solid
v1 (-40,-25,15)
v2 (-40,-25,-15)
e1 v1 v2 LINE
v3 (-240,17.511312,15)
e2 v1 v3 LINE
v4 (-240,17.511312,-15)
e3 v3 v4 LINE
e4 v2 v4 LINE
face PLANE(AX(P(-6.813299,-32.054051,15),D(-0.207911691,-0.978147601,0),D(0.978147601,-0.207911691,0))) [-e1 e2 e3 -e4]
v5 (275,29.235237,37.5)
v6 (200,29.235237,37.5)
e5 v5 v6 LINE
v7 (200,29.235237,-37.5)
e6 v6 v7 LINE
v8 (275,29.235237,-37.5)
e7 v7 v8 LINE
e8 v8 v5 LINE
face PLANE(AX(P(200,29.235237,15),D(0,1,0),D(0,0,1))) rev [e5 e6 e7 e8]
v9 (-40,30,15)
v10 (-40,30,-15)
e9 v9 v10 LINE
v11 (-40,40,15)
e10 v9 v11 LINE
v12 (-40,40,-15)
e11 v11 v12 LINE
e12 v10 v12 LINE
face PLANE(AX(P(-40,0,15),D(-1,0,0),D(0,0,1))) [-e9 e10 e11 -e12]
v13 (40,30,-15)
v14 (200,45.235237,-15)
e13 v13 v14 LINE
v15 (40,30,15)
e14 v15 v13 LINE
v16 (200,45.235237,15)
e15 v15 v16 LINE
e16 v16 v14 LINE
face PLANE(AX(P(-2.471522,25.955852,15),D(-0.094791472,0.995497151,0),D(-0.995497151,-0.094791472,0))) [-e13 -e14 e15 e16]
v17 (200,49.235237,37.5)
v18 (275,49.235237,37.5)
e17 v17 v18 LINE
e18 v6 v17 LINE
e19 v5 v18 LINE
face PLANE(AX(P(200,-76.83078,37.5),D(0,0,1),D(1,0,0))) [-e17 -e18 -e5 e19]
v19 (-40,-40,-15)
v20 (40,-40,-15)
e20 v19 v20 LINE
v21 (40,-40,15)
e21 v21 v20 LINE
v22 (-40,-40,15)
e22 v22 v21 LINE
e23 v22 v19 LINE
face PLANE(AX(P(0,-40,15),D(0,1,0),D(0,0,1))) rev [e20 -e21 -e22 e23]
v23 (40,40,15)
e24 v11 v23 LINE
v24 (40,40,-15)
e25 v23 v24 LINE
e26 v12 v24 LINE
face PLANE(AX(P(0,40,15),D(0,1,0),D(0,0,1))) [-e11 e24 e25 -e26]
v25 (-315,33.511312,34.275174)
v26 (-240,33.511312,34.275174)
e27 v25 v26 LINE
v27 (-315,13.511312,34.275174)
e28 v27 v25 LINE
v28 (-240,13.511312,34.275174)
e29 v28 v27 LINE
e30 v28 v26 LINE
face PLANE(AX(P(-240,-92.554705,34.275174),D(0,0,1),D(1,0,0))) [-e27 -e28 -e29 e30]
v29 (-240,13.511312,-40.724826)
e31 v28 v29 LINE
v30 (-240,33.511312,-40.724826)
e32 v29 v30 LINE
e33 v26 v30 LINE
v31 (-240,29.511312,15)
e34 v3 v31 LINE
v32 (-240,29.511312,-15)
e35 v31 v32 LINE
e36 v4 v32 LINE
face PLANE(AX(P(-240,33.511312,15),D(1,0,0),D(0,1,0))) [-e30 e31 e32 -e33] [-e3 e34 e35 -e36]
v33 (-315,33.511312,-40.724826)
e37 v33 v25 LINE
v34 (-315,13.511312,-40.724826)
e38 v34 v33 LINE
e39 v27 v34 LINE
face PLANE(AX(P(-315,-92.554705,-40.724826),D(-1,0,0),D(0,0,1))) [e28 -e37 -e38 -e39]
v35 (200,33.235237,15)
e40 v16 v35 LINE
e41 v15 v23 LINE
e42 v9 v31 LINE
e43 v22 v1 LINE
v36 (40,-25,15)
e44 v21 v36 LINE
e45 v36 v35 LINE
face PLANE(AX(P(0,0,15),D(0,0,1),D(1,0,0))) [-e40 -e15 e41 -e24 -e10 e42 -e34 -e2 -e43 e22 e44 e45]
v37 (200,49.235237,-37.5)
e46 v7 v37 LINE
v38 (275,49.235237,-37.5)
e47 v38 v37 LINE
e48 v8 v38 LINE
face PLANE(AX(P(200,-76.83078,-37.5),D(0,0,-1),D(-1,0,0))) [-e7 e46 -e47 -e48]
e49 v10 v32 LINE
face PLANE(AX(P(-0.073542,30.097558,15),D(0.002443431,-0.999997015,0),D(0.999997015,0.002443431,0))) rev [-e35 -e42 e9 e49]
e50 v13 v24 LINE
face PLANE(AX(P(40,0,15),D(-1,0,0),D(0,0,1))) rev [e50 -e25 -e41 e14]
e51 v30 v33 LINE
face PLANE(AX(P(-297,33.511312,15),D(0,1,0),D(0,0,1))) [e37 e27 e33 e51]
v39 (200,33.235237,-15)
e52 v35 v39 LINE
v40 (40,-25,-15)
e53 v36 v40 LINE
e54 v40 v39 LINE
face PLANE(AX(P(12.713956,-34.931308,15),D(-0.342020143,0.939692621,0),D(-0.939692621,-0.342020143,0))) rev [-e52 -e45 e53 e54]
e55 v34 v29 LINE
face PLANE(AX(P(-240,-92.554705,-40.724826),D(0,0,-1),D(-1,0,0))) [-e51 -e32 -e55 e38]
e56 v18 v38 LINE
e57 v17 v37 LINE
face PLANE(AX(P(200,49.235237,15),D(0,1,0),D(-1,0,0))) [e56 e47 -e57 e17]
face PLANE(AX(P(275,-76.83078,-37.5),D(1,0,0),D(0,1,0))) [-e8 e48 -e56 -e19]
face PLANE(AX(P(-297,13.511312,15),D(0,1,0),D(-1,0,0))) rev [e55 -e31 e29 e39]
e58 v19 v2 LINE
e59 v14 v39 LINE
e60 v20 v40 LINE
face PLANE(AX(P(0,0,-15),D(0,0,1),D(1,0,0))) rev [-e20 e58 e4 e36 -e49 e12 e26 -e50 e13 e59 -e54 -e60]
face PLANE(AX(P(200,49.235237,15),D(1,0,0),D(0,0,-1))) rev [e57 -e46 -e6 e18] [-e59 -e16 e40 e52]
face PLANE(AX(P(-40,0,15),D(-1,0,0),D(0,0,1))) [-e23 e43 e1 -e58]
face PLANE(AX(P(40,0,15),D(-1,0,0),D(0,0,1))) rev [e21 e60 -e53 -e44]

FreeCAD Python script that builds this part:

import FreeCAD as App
import Part
import Sketcher
from FreeCAD import Vector
Q = App.Units.Quantity

doc = App.newDocument("Part")
params = doc.addObject("Spreadsheet::Sheet", "Params")
for row, (alias, value) in enumerate([
    ("sketch1_width", "80 mm"),
    ("sketch1_width2", "57 mm"),
    ("sketch1_height", "15 mm"),
    ("sketch1_height2", "4 mm"),
    ("sketch1_height3", "20 mm"),
    ("pad1_length", "30 mm"),
    ("sketch2_width", "75 mm"),
    ("pad2_length", "20 mm"),
    ("sketch3_width", "75 mm"),
    ("pad3_length", "20 mm"),
], start=1):
    params.set(f"A{row}", alias)
    params.set(f"B{row}", "=" + value)
    params.setAlias(f"B{row}", alias)

body = doc.addObject("PartDesign::Body", "Body")

sketch1 = body.newObject("Sketcher::SketchObject", "Sketch")
sketch1.AttachmentSupport = (doc.getObject("XY_Plane"), [""])
sketch1.MapMode = "FlatFace"
sketch1.addGeometry([
    Part.LineSegment(Vector(-40, -25, 0), Vector(-40, -40, 0)),
    Part.LineSegment(Vector(-40, -40, 0), Vector(40, -40, 0)),
    Part.LineSegment(Vector(40, -40, 0), Vector(40, -25, 0)),
    Part.LineSegment(Vector(40, -25, 0), Vector(200, 33.2, 0)),
    Part.LineSegment(Vector(200, 33.2, 0), Vector(200, 29.2, 0)),
    Part.LineSegment(Vector(200, 29.2, 0), Vector(257, 29.2, 0)),
    Part.LineSegment(Vector(257, 29.2, 0), Vector(257, 49.2, 0)),
    Part.LineSegment(Vector(257, 49.2, 0), Vector(200, 49.2, 0)),
    Part.LineSegment(Vector(200, 49.2, 0), Vector(200, 45.2, 0)),
    Part.LineSegment(Vector(200, 45.2, 0), Vector(40, 30, 0)),
    Part.LineSegment(Vector(40, 30, 0), Vector(40, 40, 0)),
    Part.LineSegment(Vector(40, 40, 0), Vector(-40, 40, 0)),
    Part.LineSegment(Vector(-40, 40, 0), Vector(-40, 30, 0)),
    Part.LineSegment(Vector(-40, 30, 0), Vector(-240, 29.5, 0)),
    Part.LineSegment(Vector(-240, 29.5, 0), Vector(-240, 33.5, 0)),
    Part.LineSegment(Vector(-240, 33.5, 0), Vector(-297, 33.5, 0)),
    Part.LineSegment(Vector(-297, 33.5, 0), Vector(-297, 13.5, 0)),
    Part.LineSegment(Vector(-297, 13.5, 0), Vector(-240, 13.5, 0)),
    Part.LineSegment(Vector(-240, 13.5, 0), Vector(-240, 17.5, 0)),
    Part.LineSegment(Vector(-240, 17.5, 0), Vector(-40, -25, 0)),
], False)
sketch1.addConstraint([
    Sketcher.Constraint("Coincident", 0, 2, 1, 1),
    Sketcher.Constraint("Coincident", 1, 2, 2, 1),
    Sketcher.Constraint("Coincident", 2, 2, 3, 1),
    Sketcher.Constraint("Coincident", 3, 2, 4, 1),
    Sketcher.Constraint("Coincident", 4, 2, 5, 1),
    Sketcher.Constraint("Coincident", 5, 2, 6, 1),
    Sketcher.Constraint("Coincident", 6, 2, 7, 1),
    Sketcher.Constraint("Coincident", 7, 2, 8, 1),
    Sketcher.Constraint("Coincident", 8, 2, 9, 1),
    Sketcher.Constraint("Coincident", 9, 2, 10, 1),
    Sketcher.Constraint("Coincident", 10, 2, 11, 1),
    Sketcher.Constraint("Coincident", 11, 2, 12, 1),
    Sketcher.Constraint("Coincident", 12, 2, 13, 1),
    Sketcher.Constraint("Coincident", 13, 2, 14, 1),
    Sketcher.Constraint("Coincident", 14, 2, 15, 1),
    Sketcher.Constraint("Coincident", 15, 2, 16, 1),
    Sketcher.Constraint("Coincident", 16, 2, 17, 1),
    Sketcher.Constraint("Coincident", 17, 2, 18, 1),
    Sketcher.Constraint("Coincident", 18, 2, 19, 1),
    Sketcher.Constraint("Coincident", 19, 2, 0, 1),
    Sketcher.Constraint("Vertical", 0),
    Sketcher.Constraint("Horizontal", 1),
    Sketcher.Constraint("Vertical", 2),
    Sketcher.Constraint("Vertical", 4),
    Sketcher.Constraint("Horizontal", 5),
    Sketcher.Constraint("Vertical", 6),
    Sketcher.Constraint("Horizontal", 7),
    Sketcher.Constraint("Vertical", 8),
    Sketcher.Constraint("Vertical", 10),
    Sketcher.Constraint("Horizontal", 11),
    Sketcher.Constraint("Vertical", 12),
    Sketcher.Constraint("Vertical", 14),
    Sketcher.Constraint("Horizontal", 15),
    Sketcher.Constraint("Vertical", 16),
    Sketcher.Constraint("Horizontal", 17),
    Sketcher.Constraint("Vertical", 18),
    Sketcher.Constraint("Symmetric", 0, 2, 10, 2, -1, 1),
    Sketcher.Constraint("Symmetric", 9, 2, 12, 2, -2),
    Sketcher.Constraint("Symmetric", 2, 2, 19, 2, -2),
    Sketcher.Constraint("Vertical", 4, 2, 7, 2),
    Sketcher.Constraint("Vertical", 14, 2, 17, 2),
    Sketcher.Constraint("Equal", 7, 15),
    Sketcher.Constraint("Equal", 4, 8),
    Sketcher.Constraint("Equal", 8, 14),
    Sketcher.Constraint("Equal", 6, 16),
    Sketcher.Constraint("Equal", 14, 18),
    Sketcher.Constraint("DistanceX", 1, 1, 1, 2, 80.0),
    Sketcher.Constraint("DistanceX", 5, 1, 5, 2, 57.0),
    Sketcher.Constraint("DistanceY", 0, 2, 0, 1, 15.0),
    Sketcher.Constraint("DistanceY", 4, 2, 4, 1, 4.0),
    Sketcher.Constraint("DistanceY", 6, 1, 6, 2, 20.0),
    Sketcher.Constraint("DistanceY", 10, 1, 10, 2, 10.0),
    Sketcher.Constraint("Angle", 3, Q("20 deg")),
    Sketcher.Constraint("Angle", 19, Q("-12 deg")),
    Sketcher.Constraint("DistanceY", 0, 2, -1, 1, 40.0),
    Sketcher.Constraint("DistanceX", -1, 1, 3, 2, 200.0),
    Sketcher.Constraint("DistanceX", 13, 2, -1, 1, 240.0),
])
sketch1.setExpression("Constraints[46]", "Params.sketch1_width")
sketch1.setExpression("Constraints[47]", "Params.sketch1_width2")
sketch1.setExpression("Constraints[48]", "Params.sketch1_height")
sketch1.setExpression("Constraints[49]", "Params.sketch1_height2")
sketch1.setExpression("Constraints[50]", "Params.sketch1_height3")
pad1 = body.newObject("PartDesign::Pad", "Pad")
pad1.Profile = sketch1
pad1.setExpression("Length", "Params.pad1_length")
pad1.Midplane = True

sketch2 = body.newObject("Sketcher::SketchObject", "Sketch001")
sketch2.AttachmentSupport = (doc.getObject("XZ_Plane"), [""])
sketch2.MapMode = "FlatFace"
sketch2.AttachmentOffset = App.Placement(Vector(0, 0, -33.511312), App.Rotation())
sketch2.addGeometry([
    Part.LineSegment(Vector(-315, -41, 0), Vector(-315, 34, 0)),
    Part.LineSegment(Vector(-315, 34, 0), Vector(-240, 34, 0)),
    Part.LineSegment(Vector(-240, 34, 0), Vector(-240, -41, 0)),
    Part.LineSegment(Vector(-240, -41, 0), Vector(-315, -41, 0)),
], False)
sketch2.addConstraint([
    Sketcher.Constraint("Coincident", 0, 2, 1, 1),
    Sketcher.Constraint("Coincident", 1, 2, 2, 1),
    Sketcher.Constraint("Coincident", 2, 2, 3, 1),
    Sketcher.Constraint("Coincident", 3, 2, 0, 1),
    Sketcher.Constraint("Vertical", 0),
    Sketcher.Constraint("Horizontal", 1),
    Sketcher.Constraint("Vertical", 2),
    Sketcher.Constraint("Horizontal", 3),
    Sketcher.Constraint("Equal", 3, 0),
    Sketcher.Constraint("DistanceX", 1, 1, 1, 2, 75.0),
    Sketcher.Constraint("DistanceX", 0, 2, -1, 1, 315.0),
    Sketcher.Constraint("DistanceY", -1, 1, 0, 2, 34.275174),
])
sketch2.setExpression("Constraints[9]", "Params.sketch2_width")
pad2 = body.newObject("PartDesign::Pad", "Pad001")
pad2.Profile = sketch2
pad2.setExpression("Length", "Params.pad2_length")

sketch3 = body.newObject("Sketcher::SketchObject", "Sketch002")
sketch3.AttachmentSupport = (doc.getObject("XZ_Plane"), [""])
sketch3.MapMode = "FlatFace"
sketch3.AttachmentOffset = App.Placement(Vector(0, 0, -49.235237), App.Rotation())
sketch3.addGeometry([
    Part.LineSegment(Vector(200, -38, 0), Vector(200, 38, 0)),
    Part.LineSegment(Vector(200, 38, 0), Vector(275, 38, 0)),
    Part.LineSegment(Vector(275, 38, 0), Vector(275, -38, 0)),
    Part.LineSegment(Vector(275, -38, 0), Vector(200, -38, 0)),
], False)
sketch3.addConstraint([
    Sketcher.Constraint("Coincident", 0, 2, 1, 1),
    Sketcher.Constraint("Coincident", 1, 2, 2, 1),
    Sketcher.Constraint("Coincident", 2, 2, 3, 1),
    Sketcher.Constraint("Coincident", 3, 2, 0, 1),
    Sketcher.Constraint("Vertical", 0),
    Sketcher.Constraint("Horizontal", 1),
    Sketcher.Constraint("Vertical", 2),
    Sketcher.Constraint("Horizontal", 3),
    Sketcher.Constraint("Equal", 3, 0),
    Sketcher.Constraint("DistanceX", 1, 1, 1, 2, 75.0),
    Sketcher.Constraint("DistanceX", -1, 1, 0, 2, 200.0),
    Sketcher.Constraint("DistanceY", -1, 1, 0, 2, 37.5),
])
sketch3.setExpression("Constraints[9]", "Params.sketch3_width")
pad3 = body.newObject("PartDesign::Pad", "Pad002")
pad3.Profile = sketch3
pad3.setExpression("Length", "Params.pad3_length")

doc.recompute()
